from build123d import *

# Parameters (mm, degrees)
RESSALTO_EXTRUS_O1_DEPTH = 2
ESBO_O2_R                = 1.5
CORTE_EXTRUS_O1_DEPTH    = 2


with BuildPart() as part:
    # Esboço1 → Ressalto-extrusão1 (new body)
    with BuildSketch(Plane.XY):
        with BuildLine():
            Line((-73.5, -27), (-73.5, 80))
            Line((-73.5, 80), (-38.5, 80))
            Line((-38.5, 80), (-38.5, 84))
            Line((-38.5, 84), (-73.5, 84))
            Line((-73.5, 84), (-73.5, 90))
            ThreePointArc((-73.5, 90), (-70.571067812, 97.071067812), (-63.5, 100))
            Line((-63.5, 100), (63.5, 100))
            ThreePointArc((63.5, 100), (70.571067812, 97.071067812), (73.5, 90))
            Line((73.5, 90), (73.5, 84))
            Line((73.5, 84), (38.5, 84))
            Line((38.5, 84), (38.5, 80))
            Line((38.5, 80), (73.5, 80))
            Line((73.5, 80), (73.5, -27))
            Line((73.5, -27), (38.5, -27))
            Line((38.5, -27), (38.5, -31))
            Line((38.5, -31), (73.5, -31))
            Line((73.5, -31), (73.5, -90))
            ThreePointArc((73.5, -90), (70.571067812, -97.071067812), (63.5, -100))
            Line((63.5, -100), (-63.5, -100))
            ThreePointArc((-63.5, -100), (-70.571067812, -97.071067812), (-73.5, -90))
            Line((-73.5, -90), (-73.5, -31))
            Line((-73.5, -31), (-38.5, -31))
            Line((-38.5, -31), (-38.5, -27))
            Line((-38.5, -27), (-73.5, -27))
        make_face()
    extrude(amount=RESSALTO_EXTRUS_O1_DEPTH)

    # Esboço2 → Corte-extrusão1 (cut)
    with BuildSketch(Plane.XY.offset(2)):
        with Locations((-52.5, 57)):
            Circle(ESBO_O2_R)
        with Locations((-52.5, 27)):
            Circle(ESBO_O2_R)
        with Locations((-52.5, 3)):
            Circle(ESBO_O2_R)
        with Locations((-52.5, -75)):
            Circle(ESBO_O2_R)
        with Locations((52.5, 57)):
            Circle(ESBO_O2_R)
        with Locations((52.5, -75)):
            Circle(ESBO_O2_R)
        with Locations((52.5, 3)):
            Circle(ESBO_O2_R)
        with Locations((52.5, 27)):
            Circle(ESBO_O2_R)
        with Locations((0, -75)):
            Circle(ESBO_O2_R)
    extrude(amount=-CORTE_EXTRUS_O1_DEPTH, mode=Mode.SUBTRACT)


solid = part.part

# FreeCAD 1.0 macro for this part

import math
import FreeCAD as App
import Part
import Sketcher
Q = App.Units.Quantity

doc = App.newDocument("Part")
body = doc.addObject("PartDesign::Body", "Body")

# Sketch on XY plane
sketch1 = body.newObject("Sketcher::SketchObject", "Sketch")
sketch1.AttachmentSupport = (doc.getObject("XY_Plane"), [""])
sketch1.MapMode = "FlatFace"
sketch1.addGeometry(Part.LineSegment(App.Vector(-73.5, 80, 0), App.Vector(-73.5, -27, 0)), False)
sketch1.addGeometry(Part.LineSegment(App.Vector(-73.5, -27, 0), App.Vector(-38.5, -27, 0)), False)
sketch1.addGeometry(Part.LineSegment(App.Vector(-38.5, -27, 0), App.Vector(-38.5, -31, 0)), False)
sketch1.addGeometry(Part.LineSegment(App.Vector(-38.5, -31, 0), App.Vector(-73.5, -31, 0)), False)
sketch1.addGeometry(Part.LineSegment(App.Vector(-73.5, -31, 0), App.Vector(-73.5, -90, 0)), False)
sketch1.addGeometry(Part.ArcOfCircle(Part.Circle(App.Vector(-63.5, -90, 0), App.Vector(0, 0, 1), 10), math.radians(180), math.radians(270)), False)
sketch1.addGeometry(Part.LineSegment(App.Vector(-63.5, -100, 0), App.Vector(63.5, -100, 0)), False)
sketch1.addGeometry(Part.ArcOfCircle(Part.Circle(App.Vector(63.5, -90, 0), App.Vector(0, 0, 1), 10), math.radians(-90), math.radians(0)), False)
sketch1.addGeometry(Part.LineSegment(App.Vector(73.5, -90, 0), App.Vector(73.5, -31, 0)), False)
sketch1.addGeometry(Part.LineSegment(App.Vector(73.5, -31, 0), App.Vector(38.5, -31, 0)), False)
sketch1.addGeometry(Part.LineSegment(App.Vector(38.5, -31, 0), App.Vector(38.5, -27, 0)), False)
sketch1.addGeometry(Part.LineSegment(App.Vector(38.5, -27, 0), App.Vector(73.5, -27, 0)), False)
sketch1.addGeometry(Part.LineSegment(App.Vector(73.5, -27, 0), App.Vector(73.5, 80, 0)), False)
sketch1.addGeometry(Part.LineSegment(App.Vector(73.5, 80, 0), App.Vector(38.5, 80, 0)), False)
sketch1.addGeometry(Part.LineSegment(App.Vector(38.5, 80, 0), App.Vector(38.5, 84, 0)), False)
sketch1.addGeometry(Part.LineSegment(App.Vector(38.5, 84, 0), App.Vector(73.5, 84, 0)), False)
sketch1.addGeometry(Part.LineSegment(App.Vector(73.5, 84, 0), App.Vector(73.5, 90, 0)), False)
sketch1.addGeometry(Part.ArcOfCircle(Part.Circle(App.Vector(63.5, 90, 0), App.Vector(0, 0, 1), 10), math.radians(0), math.radians(90)), False)
sketch1.addGeometry(Part.LineSegment(App.Vector(63.5, 100, 0), App.Vector(-63.5, 100, 0)), False)
sketch1.addGeometry(Part.ArcOfCircle(Part.Circle(App.Vector(-63.5, 90, 0), App.Vector(0, 0, 1), 10), math.radians(90), math.radians(180)), False)
sketch1.addGeometry(Part.LineSegment(App.Vector(-73.5, 90, 0), App.Vector(-73.5, 84, 0)), False)
sketch1.addGeometry(Part.LineSegment(App.Vector(-73.5, 84, 0), App.Vector(-38.5, 84, 0)), False)
sketch1.addGeometry(Part.LineSegment(App.Vector(-38.5, 84, 0), App.Vector(-38.5, 80, 0)), False)
sketch1.addGeometry(Part.LineSegment(App.Vector(-38.5, 80, 0), App.Vector(-73.5, 80, 0)), False)
sketch1.addConstraint(Sketcher.Constraint("Coincident", 0, 2, 1, 1))
sketch1.addConstraint(Sketcher.Constraint("Coincident", 1, 2, 2, 1))
sketch1.addConstraint(Sketcher.Constraint("Coincident", 2, 2, 3, 1))
sketch1.addConstraint(Sketcher.Constraint("Coincident", 3, 2, 4, 1))
sketch1.addConstraint(Sketcher.Constraint("Tangent", 4, 2, 5, 1))
sketch1.addConstraint(Sketcher.Constraint("Tangent", 5, 2, 6, 1))
sketch1.addConstraint(Sketcher.Constraint("Tangent", 6, 2, 7, 1))
sketch1.addConstraint(Sketcher.Constraint("Tangent", 7, 2, 8, 1))
sketch1.addConstraint(Sketcher.Constraint("Coincident", 8, 2, 9, 1))
sketch1.addConstraint(Sketcher.Constraint("Coincident", 9, 2, 10, 1))
sketch1.addConstraint(Sketcher.Constraint("Coincident", 10, 2, 11, 1))
sketch1.addConstraint(Sketcher.Constraint("Coincident", 11, 2, 12, 1))
sketch1.addConstraint(Sketcher.Constraint("Coincident", 12, 2, 13, 1))
sketch1.addConstraint(Sketcher.Constraint("Coincident", 13, 2, 14, 1))
sketch1.addConstraint(Sketcher.Constraint("Coincident", 14, 2, 15, 1))
sketch1.addConstraint(Sketcher.Constraint("Coincident", 15, 2, 16, 1))
sketch1.addConstraint(Sketcher.Constraint("Tangent", 16, 2, 17, 1))
sketch1.addConstraint(Sketcher.Constraint("Tangent", 17, 2, 18, 1))
sketch1.addConstraint(Sketcher.Constraint("Tangent", 18, 2, 19, 1))
sketch1.addConstraint(Sketcher.Constraint("Tangent", 19, 2, 20, 1))
sketch1.addConstraint(Sketcher.Constraint("Coincident", 20, 2, 21, 1))
sketch1.addConstraint(Sketcher.Constraint("Coincident", 21, 2, 22, 1))
sketch1.addConstraint(Sketcher.Constraint("Coincident", 22, 2, 23, 1))
sketch1.addConstraint(Sketcher.Constraint("Coincident", 23, 2, 0, 1))
sketch1.addConstraint(Sketcher.Constraint("Vertical", 0))
sketch1.addConstraint(Sketcher.Constraint("Horizontal", 1))
sketch1.addConstraint(Sketcher.Constraint("Vertical", 2))
sketch1.addConstraint(Sketcher.Constraint("Horizontal", 3))
sketch1.addConstraint(Sketcher.Constraint("Vertical", 4))
sketch1.addConstraint(Sketcher.Constraint("Horizontal", 6))
sketch1.addConstraint(Sketcher.Constraint("Vertical", 8))
sketch1.addConstraint(Sketcher.Constraint("Horizontal", 9))
sketch1.addConstraint(Sketcher.Constraint("Vertical", 10))
sketch1.addConstraint(Sketcher.Constraint("Horizontal", 11))
sketch1.addConstraint(Sketcher.Constraint("Vertical", 12))
sketch1.addConstraint(Sketcher.Constraint("Horizontal", 13))
sketch1.addConstraint(Sketcher.Constraint("Vertical", 14))
sketch1.addConstraint(Sketcher.Constraint("Horizontal", 15))
sketch1.addConstraint(Sketcher.Constraint("Vertical", 16))
sketch1.addConstraint(Sketcher.Constraint("Horizontal", 18))
sketch1.addConstraint(Sketcher.Constraint("Vertical", 20))
sketch1.addConstraint(Sketcher.Constraint("Horizontal", 21))
sketch1.addConstraint(Sketcher.Constraint("Vertical", 22))
sketch1.addConstraint(Sketcher.Constraint("Horizontal", 23))
sketch1.addConstraint(Sketcher.Constraint("Equal", 5, 7))
sketch1.addConstraint(Sketcher.Constraint("Equal", 7, 17))
sketch1.addConstraint(Sketcher.Constraint("Equal", 17, 19))
sketch1.addConstraint(Sketcher.Constraint("Symmetric", 5, 3, 17, 3, -1, 1))
sketch1.addConstraint(Sketcher.Constraint("Symmetric", 3, 2, 8, 2, -2))
sketch1.addConstraint(Sketcher.Constraint("Symmetric", 1, 2, 10, 2, -2))
sketch1.addConstraint(Sketcher.Constraint("Symmetric", 15, 2, 20, 2, -2))
sketch1.addConstraint(Sketcher.Constraint("Symmetric", 13, 2, 22, 2, -2))
sketch1.addConstraint(Sketcher.Constraint("Vertical", 0, 2, 3, 2))
sketch1.addConstraint(Sketcher.Constraint("Vertical", 8, 2, 11, 2))
sketch1.addConstraint(Sketcher.Constraint("Vertical", 10, 2, 13, 2))
sketch1.addConstraint(Sketcher.Constraint("Equal", 10, 14))
sketch1.addConstraint(Sketcher.Constraint("Radius", 5, Q("10 mm")))
sketch1.addConstraint(Sketcher.Constraint("DistanceX", 1, 1, 1, 2, Q("35 mm")))
sketch1.addConstraint(Sketcher.Constraint("DistanceX", 6, 1, 6, 2, Q("127 mm")))
sketch1.addConstraint(Sketcher.Constraint("DistanceY", 0, 2, 0, 1, Q("107 mm")))
sketch1.addConstraint(Sketcher.Constraint("DistanceY", 2, 2, 2, 1, Q("4 mm")))
sketch1.addConstraint(Sketcher.Constraint("DistanceY", 4, 2, 4, 1, Q("59 mm")))
sketch1.addConstraint(Sketcher.Constraint("DistanceY", 16, 1, 16, 2, Q("6 mm")))
pad1 = body.newObject("PartDesign::Pad", "Pad")
pad1.Profile = sketch1
pad1.Length = 2

# Sketch on XY plane
sketch2 = body.newObject("Sketcher::SketchObject", "Sketch001")
sketch2.AttachmentSupport = (doc.getObject("XY_Plane"), [""])
sketch2.MapMode = "FlatFace"
sketch2.AttachmentOffset = App.Placement(App.Vector(0, 0, 2), App.Rotation())
sketch2.addGeometry(Part.Circle(App.Vector(-52.5, 57, 0), App.Vector(0, 0, 1), 1.5), False)
sketch2.addGeometry(Part.Circle(App.Vector(-52.5, 27, 0), App.Vector(0, 0, 1), 1.5), False)
sketch2.addGeometry(Part.Circle(App.Vector(-52.5, 3, 0), App.Vector(0, 0, 1), 1.5), False)
sketch2.addGeometry(Part.Circle(App.Vector(-52.5, -75, 0), App.Vector(0, 0, 1), 1.5), False)
sketch2.addGeometry(Part.Circle(App.Vector(52.5, 57, 0), App.Vector(0, 0, 1), 1.5), False)
sketch2.addGeometry(Part.Circle(App.Vector(52.5, -75, 0), App.Vector(0, 0, 1), 1.5), False)
sketch2.addGeometry(Part.Circle(App.Vector(52.5, 3, 0), App.Vector(0, 0, 1), 1.5), False)
sketch2.addGeometry(Part.Circle(App.Vector(52.5, 27, 0), App.Vector(0, 0, 1), 1.5), False)
sketch2.addGeometry(Part.Circle(App.Vector(0, -75, 0), App.Vector(0, 0, 1), 1.5), False)
sketch2.addConstraint(Sketcher.Constraint("Equal", 0, 1))
sketch2.addConstraint(Sketcher.Constraint("Equal", 1, 2))
sketch2.addConstraint(Sketcher.Constraint("Equal", 2, 3))
sketch2.addConstraint(Sketcher.Constraint("Equal", 3, 4))
sketch2.addConstraint(Sketcher.Constraint("Equal", 4, 5))
sketch2.addConstraint(Sketcher.Constraint("Equal", 5, 6))
sketch2.addConstraint(Sketcher.Constraint("Equal", 6, 7))
sketch2.addConstraint(Sketcher.Constraint("Equal", 7, 8))
sketch2.addConstraint(Sketcher.Constraint("Symmetric", 0, 3, 4, 3, -2))
sketch2.addConstraint(Sketcher.Constraint("Symmetric", 3, 3, 5, 3, -2))
sketch2.addConstraint(Sketcher.Constraint("Symmetric", 2, 3, 6, 3, -2))
sketch2.addConstraint(Sketcher.Constraint("Symmetric", 1, 3, 7, 3, -2))
sketch2.addConstraint(Sketcher.Constraint("PointOnObject", 8, 3, -2))
sketch2.addConstraint(Sketcher.Constraint("Horizontal", 5, 3, 8, 3))
sketch2.addConstraint(Sketcher.Constraint("Vertical", 0, 3, 1, 3))
sketch2.addConstraint(Sketcher.Constraint("Vertical", 1, 3, 2, 3))
sketch2.addConstraint(Sketcher.Constraint("Vertical", 2, 3, 3, 3))
sketch2.addConstraint(Sketcher.Constraint("Diameter", 0, Q("3 mm")))
sketch2.addConstraint(Sketcher.Constraint("DistanceY", -1, 1, 0, 3, Q("57 mm")))
sketch2.addConstraint(Sketcher.Constraint("DistanceY", -1, 1, 1, 3, Q("27 mm")))
sketch2.addConstraint(Sketcher.Constraint("DistanceY", -1, 1, 2, 3, Q("3 mm")))
sketch2.addConstraint(Sketcher.Constraint("DistanceY", 3, 3, -1, 1, Q("75 mm")))
sketch2.addConstraint(Sketcher.Constraint("DistanceX", 0, 3, 4, 3, Q("105 mm")))
pocket1 = body.newObject("PartDesign::Pocket", "Pocket")
pocket1.Profile = sketch2
pocket1.Length = 2

doc.recompute()
